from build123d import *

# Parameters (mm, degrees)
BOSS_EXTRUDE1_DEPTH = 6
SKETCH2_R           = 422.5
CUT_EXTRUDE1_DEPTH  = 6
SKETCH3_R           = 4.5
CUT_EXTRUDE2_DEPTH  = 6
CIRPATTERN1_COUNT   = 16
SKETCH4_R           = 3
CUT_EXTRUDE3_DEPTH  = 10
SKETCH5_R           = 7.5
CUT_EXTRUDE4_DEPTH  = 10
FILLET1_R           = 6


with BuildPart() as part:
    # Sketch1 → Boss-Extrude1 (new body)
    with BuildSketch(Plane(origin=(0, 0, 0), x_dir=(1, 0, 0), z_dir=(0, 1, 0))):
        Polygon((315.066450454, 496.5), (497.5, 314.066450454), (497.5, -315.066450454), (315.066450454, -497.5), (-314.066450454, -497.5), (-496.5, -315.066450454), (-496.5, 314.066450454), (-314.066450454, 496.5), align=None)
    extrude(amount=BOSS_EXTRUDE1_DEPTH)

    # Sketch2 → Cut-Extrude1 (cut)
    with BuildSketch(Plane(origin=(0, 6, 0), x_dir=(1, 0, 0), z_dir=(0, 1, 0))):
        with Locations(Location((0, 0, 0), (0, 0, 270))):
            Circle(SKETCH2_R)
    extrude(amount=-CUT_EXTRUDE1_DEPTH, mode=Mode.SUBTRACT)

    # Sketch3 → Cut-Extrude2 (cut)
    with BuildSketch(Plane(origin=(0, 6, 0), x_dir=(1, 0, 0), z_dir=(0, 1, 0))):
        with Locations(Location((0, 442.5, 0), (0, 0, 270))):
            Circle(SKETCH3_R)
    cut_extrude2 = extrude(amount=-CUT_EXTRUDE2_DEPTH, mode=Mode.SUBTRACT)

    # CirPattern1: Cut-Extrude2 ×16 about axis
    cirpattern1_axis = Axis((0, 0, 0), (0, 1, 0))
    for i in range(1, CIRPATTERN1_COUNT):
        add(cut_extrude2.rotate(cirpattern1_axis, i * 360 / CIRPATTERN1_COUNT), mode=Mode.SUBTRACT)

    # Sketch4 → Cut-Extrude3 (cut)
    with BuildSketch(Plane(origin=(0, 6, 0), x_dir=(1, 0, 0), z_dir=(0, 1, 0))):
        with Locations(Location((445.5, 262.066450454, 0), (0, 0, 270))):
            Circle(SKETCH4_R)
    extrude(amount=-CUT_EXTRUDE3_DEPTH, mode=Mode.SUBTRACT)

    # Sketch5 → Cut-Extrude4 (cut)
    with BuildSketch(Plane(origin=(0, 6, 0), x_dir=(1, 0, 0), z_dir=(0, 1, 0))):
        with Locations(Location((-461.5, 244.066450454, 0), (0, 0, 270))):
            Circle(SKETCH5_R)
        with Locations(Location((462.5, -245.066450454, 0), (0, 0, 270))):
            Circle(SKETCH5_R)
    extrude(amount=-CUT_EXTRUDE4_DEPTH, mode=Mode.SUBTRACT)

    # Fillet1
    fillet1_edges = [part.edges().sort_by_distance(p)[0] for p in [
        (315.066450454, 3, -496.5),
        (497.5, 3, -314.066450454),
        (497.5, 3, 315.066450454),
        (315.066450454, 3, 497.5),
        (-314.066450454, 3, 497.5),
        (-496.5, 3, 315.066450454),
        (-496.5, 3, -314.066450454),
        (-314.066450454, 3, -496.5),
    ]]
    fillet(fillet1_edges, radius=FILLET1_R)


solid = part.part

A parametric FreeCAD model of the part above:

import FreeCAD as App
import Part
import Sketcher

V = App.Vector
Q = App.Units.Quantity


def edges_at(feature, points):
    """Names of the edges that pass closest to the given points."""
    edges = feature.Shape.Edges
    near = lambda p: min(range(len(edges)), key=lambda i: edges[i].distToShape(Part.Vertex(*p))[0])
    return sorted({f"Edge{near(p) + 1}" for p in points})

doc = App.newDocument("Part")
body = doc.addObject("PartDesign::Body", "Body")

# Sketch on XZ plane
sketch1 = body.newObject("Sketcher::SketchObject", "Sketch")
sketch1.AttachmentSupport = (doc.getObject("XZ_Plane"), [""])
sketch1.MapMode = "FlatFace"
sketch1.addGeometry(Part.LineSegment(V(497.5, -314.06645, 0), V(315.06645, -496.5, 0)), False)
sketch1.addGeometry(Part.LineSegment(V(315.06645, -496.5, 0), V(-314.06645, -496.5, 0)), False)
sketch1.addGeometry(Part.LineSegment(V(-314.06645, -496.5, 0), V(-496.5, -314.06645, 0)), False)
sketch1.addGeometry(Part.LineSegment(V(-496.5, -314.06645, 0), V(-496.5, 315.06645, 0)), False)
sketch1.addGeometry(Part.LineSegment(V(-496.5, 315.06645, 0), V(-314.06645, 497.5, 0)), False)
sketch1.addGeometry(Part.LineSegment(V(-314.06645, 497.5, 0), V(315.06645, 497.5, 0)), False)
sketch1.addGeometry(Part.LineSegment(V(315.06645, 497.5, 0), V(497.5, 315.06645, 0)), False)
sketch1.addGeometry(Part.LineSegment(V(497.5, 315.06645, 0), V(497.5, -314.06645, 0)), False)
sketch1.addConstraint(Sketcher.Constraint("Coincident", 0, 2, 1, 1))
sketch1.addConstraint(Sketcher.Constraint("Coincident", 1, 2, 2, 1))
sketch1.addConstraint(Sketcher.Constraint("Coincident", 2, 2, 3, 1))
sketch1.addConstraint(Sketcher.Constraint("Coincident", 3, 2, 4, 1))
sketch1.addConstraint(Sketcher.Constraint("Coincident", 4, 2, 5, 1))
sketch1.addConstraint(Sketcher.Constraint("Coincident", 5, 2, 6, 1))
sketch1.addConstraint(Sketcher.Constraint("Coincident", 6, 2, 7, 1))
sketch1.addConstraint(Sketcher.Constraint("Coincident", 7, 2, 0, 1))
sketch1.addConstraint(Sketcher.Constraint("Horizontal", 1))
sketch1.addConstraint(Sketcher.Constraint("Vertical", 3))
sketch1.addConstraint(Sketcher.Constraint("Horizontal", 5))
sketch1.addConstraint(Sketcher.Constraint("Vertical", 7))
sketch1.addConstraint(Sketcher.Constraint("Perpendicular", 0, 2))
sketch1.addConstraint(Sketcher.Constraint("Perpendicular", 2, 4))
sketch1.addConstraint(Sketcher.Constraint("Perpendicular", 4, 6))
sketch1.addConstraint(Sketcher.Constraint("Horizontal", 3, 2, 6, 2))
sketch1.addConstraint(Sketcher.Constraint("Horizontal", 2, 2, 7, 2))
sketch1.addConstraint(Sketcher.Constraint("Vertical", 1, 2, 4, 2))
sketch1.addConstraint(Sketcher.Constraint("Vertical", 0, 2, 5, 2))
sketch1.addConstraint(Sketcher.Constraint("Equal", 5, 3))
sketch1.addConstraint(Sketcher.Constraint("Distance", 0, Q("258 mm")))
sketch1.addConstraint(Sketcher.Constraint("DistanceY", 1, 2, 4, 2, Q("994 mm")))
sketch1.addConstraint(Sketcher.Constraint("DistanceY", 0, 2, -1, 1, Q("496.5 mm")))
sketch1.addConstraint(Sketcher.Constraint("DistanceX", 2, 2, -1, 1, Q("496.5 mm")))
pad1 = body.newObject("PartDesign::Pad", "Pad")
pad1.Profile = sketch1
pad1.Length = 6
pad1.Reversed = True

# Sketch on XZ plane
sketch2 = body.newObject("Sketcher::SketchObject", "Sketch001")
sketch2.AttachmentSupport = (doc.getObject("XZ_Plane"), [""])
sketch2.MapMode = "FlatFace"
sketch2.AttachmentOffset = App.Placement(V(0, 0, -6), App.Rotation())
sketch2.addGeometry(Part.Circle(V(0, 0, 0), V(0, 0, 1), 422.5), False)
sketch2.addConstraint(Sketcher.Constraint("Coincident", 0, 3, -1, 1))
sketch2.addConstraint(Sketcher.Constraint("Diameter", 0, Q("845 mm")))
pocket1 = body.newObject("PartDesign::Pocket", "Pocket")
pocket1.Profile = sketch2
pocket1.Length = 6
pocket1.Reversed = True

# Sketch on XZ plane
sketch3 = body.newObject("Sketcher::SketchObject", "Sketch002")
sketch3.AttachmentSupport = (doc.getObject("XZ_Plane"), [""])
sketch3.MapMode = "FlatFace"
sketch3.AttachmentOffset = App.Placement(V(0, 0, -6), App.Rotation())
sketch3.addGeometry(Part.Circle(V(0, -442.5, 0), V(0, 0, 1), 4.5), False)
sketch3.addConstraint(Sketcher.Constraint("PointOnObject", 0, 3, -2))
sketch3.addConstraint(Sketcher.Constraint("Diameter", 0, Q("9 mm")))
sketch3.addConstraint(Sketcher.Constraint("DistanceY", 0, 3, -1, 1, Q("442.5 mm")))
pocket2 = body.newObject("PartDesign::Pocket", "Pocket001")
pocket2.Profile = sketch3
pocket2.Length = 6
pocket2.Reversed = True
doc.recompute()

polarpattern = body.newObject("PartDesign::PolarPattern", "PolarPattern")
polarpattern.Originals = [pocket2]
polarpattern.Axis = (doc.getObject("Y_Axis"), [""])
polarpattern.Angle = 360
polarpattern.Occurrences = 16
body.Tip = polarpattern

# Sketch on XZ plane
sketch4 = body.newObject("Sketcher::SketchObject", "Sketch003")
sketch4.AttachmentSupport = (doc.getObject("XZ_Plane"), [""])
sketch4.MapMode = "FlatFace"
sketch4.AttachmentOffset = App.Placement(V(0, 0, -6), App.Rotation())
sketch4.addGeometry(Part.Circle(V(445.5, -262.06645, 0), V(0, 0, 1), 3), False)
sketch4.addConstraint(Sketcher.Constraint("Diameter", 0, Q("6 mm")))
sketch4.addConstraint(Sketcher.Constraint("DistanceX", -1, 1, 0, 3, Q("445.5 mm")))
sketch4.addConstraint(Sketcher.Constraint("DistanceY", 0, 3, -1, 1, Q("262.06645 mm")))
pocket3 = body.newObject("PartDesign::Pocket", "Pocket002")
pocket3.Profile = sketch4
pocket3.Length = 10
pocket3.Reversed = True

# Sketch on XZ plane
sketch5 = body.newObject("Sketcher::SketchObject", "Sketch004")
sketch5.AttachmentSupport = (doc.getObject("XZ_Plane"), [""])
sketch5.MapMode = "FlatFace"
sketch5.AttachmentOffset = App.Placement(V(0, 0, -6), App.Rotation())
sketch5.addGeometry(Part.Circle(V(-461.5, -244.06645, 0), V(0, 0, 1), 7.5), False)
sketch5.addGeometry(Part.Circle(V(462.5, 245.06645, 0), V(0, 0, 1), 7.5), False)
sketch5.addConstraint(Sketcher.Constraint("Equal", 0, 1))
sketch5.addConstraint(Sketcher.Constraint("Diameter", 0, Q("15 mm")))
sketch5.addConstraint(Sketcher.Constraint("DistanceX", 0, 3, 1, 3, Q("924 mm")))
sketch5.addConstraint(Sketcher.Constraint("DistanceX", 0, 3, -1, 1, Q("461.5 mm")))
sketch5.addConstraint(Sketcher.Constraint("DistanceY", 0, 3, 1, 3, Q("489.132901 mm")))
sketch5.addConstraint(Sketcher.Constraint("DistanceY", 0, 3, -1, 1, Q("244.06645 mm")))
pocket4 = body.newObject("PartDesign::Pocket", "Pocket003")
pocket4.Profile = sketch5
pocket4.Length = 10
pocket4.Reversed = True
doc.recompute()

fillet = body.newObject("PartDesign::Fillet", "Fillet")
fillet.Base = (pocket4, edges_at(pocket4, [
    (315.066, 3, -496.5),
    (497.5, 3, -314.066),
    (497.5, 3, 315.066),
    (315.066, 3, 497.5),
    (-314.066, 3, 497.5),
    (-496.5, 3, 315.066),
    (-496.5, 3, -314.066),
    (-314.066, 3, -496.5),
]))
fillet.Radius = 6

doc.recompute()
